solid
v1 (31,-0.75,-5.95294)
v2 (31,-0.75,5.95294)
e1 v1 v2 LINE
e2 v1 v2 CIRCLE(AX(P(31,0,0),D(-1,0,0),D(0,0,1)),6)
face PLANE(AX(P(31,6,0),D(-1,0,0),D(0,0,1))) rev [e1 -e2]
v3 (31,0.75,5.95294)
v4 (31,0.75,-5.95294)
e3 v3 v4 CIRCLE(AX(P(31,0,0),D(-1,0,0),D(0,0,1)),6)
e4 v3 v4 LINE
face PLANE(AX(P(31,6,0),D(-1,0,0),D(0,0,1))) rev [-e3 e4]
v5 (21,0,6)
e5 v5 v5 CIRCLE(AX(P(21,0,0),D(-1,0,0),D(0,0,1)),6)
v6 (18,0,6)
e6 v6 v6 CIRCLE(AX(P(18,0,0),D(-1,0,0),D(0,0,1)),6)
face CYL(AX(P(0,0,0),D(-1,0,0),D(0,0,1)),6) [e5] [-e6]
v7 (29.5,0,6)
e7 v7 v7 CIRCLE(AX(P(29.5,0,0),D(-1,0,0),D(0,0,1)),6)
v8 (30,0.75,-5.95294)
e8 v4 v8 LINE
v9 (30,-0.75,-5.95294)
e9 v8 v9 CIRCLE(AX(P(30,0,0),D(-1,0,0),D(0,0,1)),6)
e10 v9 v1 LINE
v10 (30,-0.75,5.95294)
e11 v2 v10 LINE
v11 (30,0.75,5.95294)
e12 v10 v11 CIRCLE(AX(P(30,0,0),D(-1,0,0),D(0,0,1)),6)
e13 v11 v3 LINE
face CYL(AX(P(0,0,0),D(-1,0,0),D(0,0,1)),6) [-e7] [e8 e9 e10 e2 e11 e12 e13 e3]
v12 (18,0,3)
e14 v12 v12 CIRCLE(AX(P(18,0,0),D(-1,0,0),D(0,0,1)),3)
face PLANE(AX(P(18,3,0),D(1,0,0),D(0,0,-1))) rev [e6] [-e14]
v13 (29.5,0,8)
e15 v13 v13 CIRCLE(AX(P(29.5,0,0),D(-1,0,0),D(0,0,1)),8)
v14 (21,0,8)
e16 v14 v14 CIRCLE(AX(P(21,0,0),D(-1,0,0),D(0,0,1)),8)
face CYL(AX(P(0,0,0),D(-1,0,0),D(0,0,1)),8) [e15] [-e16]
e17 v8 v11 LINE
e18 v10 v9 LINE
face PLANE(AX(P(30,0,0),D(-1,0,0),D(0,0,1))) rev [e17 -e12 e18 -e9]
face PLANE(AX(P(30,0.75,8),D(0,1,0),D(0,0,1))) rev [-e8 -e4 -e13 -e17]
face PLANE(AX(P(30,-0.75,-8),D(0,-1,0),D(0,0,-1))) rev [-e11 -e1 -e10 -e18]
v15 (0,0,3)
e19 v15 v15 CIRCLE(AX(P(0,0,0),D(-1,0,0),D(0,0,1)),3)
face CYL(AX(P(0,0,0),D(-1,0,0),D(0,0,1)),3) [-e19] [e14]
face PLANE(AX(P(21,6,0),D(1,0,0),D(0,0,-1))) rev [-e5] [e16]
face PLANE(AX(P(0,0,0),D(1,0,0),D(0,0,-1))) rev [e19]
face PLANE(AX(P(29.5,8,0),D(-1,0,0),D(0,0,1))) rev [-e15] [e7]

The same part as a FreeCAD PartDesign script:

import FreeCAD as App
import Part
import Sketcher

V = App.Vector


def add_polygon(sketch, points):
    """Adds a closed chain of lines whose ends are joined by coincident constraints."""
    first, n = sketch.GeometryCount, len(points)
    for a, b in zip(points, points[1:] + points[:1]):
        sketch.addGeometry(Part.LineSegment(App.Vector(*a, 0), App.Vector(*b, 0)), False)
    for i in range(n):
        sketch.addConstraint(Sketcher.Constraint("Coincident", first + i, 2, first + (i + 1) % n, 1))

doc = App.newDocument("Part")
body = doc.addObject("PartDesign::Body", "Body")

# Sketch on XY plane
sketch1 = body.newObject("Sketcher::SketchObject", "Sketch")
sketch1.AttachmentSupport = (doc.getObject("XY_Plane"), [""])
sketch1.MapMode = "FlatFace"
add_polygon(sketch1, [(0, 3), (0, 0), (31, 0), (31, 6), (29.5, 6), (29.5, 8), (21, 8), (21, 6), (18, 6), (18, 3)])  # lines 0-9
sketch1.addConstraint([
    Sketcher.Constraint("Vertical", 0),
    Sketcher.Constraint("Horizontal", 1),
    Sketcher.Constraint("Vertical", 2),
    Sketcher.Constraint("Horizontal", 3),
    Sketcher.Constraint("Vertical", 4),
    Sketcher.Constraint("Horizontal", 5),
    Sketcher.Constraint("Vertical", 6),
    Sketcher.Constraint("Horizontal", 7),
    Sketcher.Constraint("Vertical", 8),
    Sketcher.Constraint("Horizontal", 9),
    Sketcher.Constraint("Coincident", 0, 2, -1, 1),
    Sketcher.Constraint("Horizontal", 3, 2, 6, 2),
    Sketcher.Constraint("Equal", 7, 0),
    Sketcher.Constraint("Equal", 0, 8),
    Sketcher.Constraint("DistanceX", 1, 1, 1, 2, 31.0),
    Sketcher.Constraint("DistanceX", 7, 2, 7, 1, 3.0),
    Sketcher.Constraint("DistanceX", 9, 2, 9, 1, 18.0),
    Sketcher.Constraint("DistanceY", 4, 1, 4, 2, 2.0),
    Sketcher.Constraint("DistanceX", 3, 2, 3, 1, 1.5),
])
revolution = body.newObject("PartDesign::Revolution", "Revolution")
revolution.Profile = sketch1
revolution.ReferenceAxis = (sketch1, ["H_Axis"])
revolution.Angle = 360

# Sketch on YZ plane
sketch2 = body.newObject("Sketcher::SketchObject", "Sketch001")
sketch2.AttachmentSupport = (doc.getObject("YZ_Plane"), [""])
sketch2.MapMode = "FlatFace"
sketch2.AttachmentOffset = App.Placement(V(0, 0, 31), App.Rotation())
add_polygon(sketch2, [(0.8, 8), (-0.8, 8), (-0.8, -8), (0.8, -8)])  # lines 0-3
sketch2.addConstraint([
    Sketcher.Constraint("Horizontal", 0),
    Sketcher.Constraint("Vertical", 1),
    Sketcher.Constraint("Horizontal", 2),
    Sketcher.Constraint("Vertical", 3),
    Sketcher.Constraint("Symmetric", 0, 2, 2, 2, -1, 1),
    Sketcher.Constraint("DistanceY", 1, 2, 1, 1, 16.0),
    Sketcher.Constraint("DistanceX", 0, 2, 0, 1, 1.5),
])
pocket1 = body.newObject("PartDesign::Pocket", "Pocket")
pocket1.Profile = sketch2
pocket1.Length = 1

doc.recompute()
